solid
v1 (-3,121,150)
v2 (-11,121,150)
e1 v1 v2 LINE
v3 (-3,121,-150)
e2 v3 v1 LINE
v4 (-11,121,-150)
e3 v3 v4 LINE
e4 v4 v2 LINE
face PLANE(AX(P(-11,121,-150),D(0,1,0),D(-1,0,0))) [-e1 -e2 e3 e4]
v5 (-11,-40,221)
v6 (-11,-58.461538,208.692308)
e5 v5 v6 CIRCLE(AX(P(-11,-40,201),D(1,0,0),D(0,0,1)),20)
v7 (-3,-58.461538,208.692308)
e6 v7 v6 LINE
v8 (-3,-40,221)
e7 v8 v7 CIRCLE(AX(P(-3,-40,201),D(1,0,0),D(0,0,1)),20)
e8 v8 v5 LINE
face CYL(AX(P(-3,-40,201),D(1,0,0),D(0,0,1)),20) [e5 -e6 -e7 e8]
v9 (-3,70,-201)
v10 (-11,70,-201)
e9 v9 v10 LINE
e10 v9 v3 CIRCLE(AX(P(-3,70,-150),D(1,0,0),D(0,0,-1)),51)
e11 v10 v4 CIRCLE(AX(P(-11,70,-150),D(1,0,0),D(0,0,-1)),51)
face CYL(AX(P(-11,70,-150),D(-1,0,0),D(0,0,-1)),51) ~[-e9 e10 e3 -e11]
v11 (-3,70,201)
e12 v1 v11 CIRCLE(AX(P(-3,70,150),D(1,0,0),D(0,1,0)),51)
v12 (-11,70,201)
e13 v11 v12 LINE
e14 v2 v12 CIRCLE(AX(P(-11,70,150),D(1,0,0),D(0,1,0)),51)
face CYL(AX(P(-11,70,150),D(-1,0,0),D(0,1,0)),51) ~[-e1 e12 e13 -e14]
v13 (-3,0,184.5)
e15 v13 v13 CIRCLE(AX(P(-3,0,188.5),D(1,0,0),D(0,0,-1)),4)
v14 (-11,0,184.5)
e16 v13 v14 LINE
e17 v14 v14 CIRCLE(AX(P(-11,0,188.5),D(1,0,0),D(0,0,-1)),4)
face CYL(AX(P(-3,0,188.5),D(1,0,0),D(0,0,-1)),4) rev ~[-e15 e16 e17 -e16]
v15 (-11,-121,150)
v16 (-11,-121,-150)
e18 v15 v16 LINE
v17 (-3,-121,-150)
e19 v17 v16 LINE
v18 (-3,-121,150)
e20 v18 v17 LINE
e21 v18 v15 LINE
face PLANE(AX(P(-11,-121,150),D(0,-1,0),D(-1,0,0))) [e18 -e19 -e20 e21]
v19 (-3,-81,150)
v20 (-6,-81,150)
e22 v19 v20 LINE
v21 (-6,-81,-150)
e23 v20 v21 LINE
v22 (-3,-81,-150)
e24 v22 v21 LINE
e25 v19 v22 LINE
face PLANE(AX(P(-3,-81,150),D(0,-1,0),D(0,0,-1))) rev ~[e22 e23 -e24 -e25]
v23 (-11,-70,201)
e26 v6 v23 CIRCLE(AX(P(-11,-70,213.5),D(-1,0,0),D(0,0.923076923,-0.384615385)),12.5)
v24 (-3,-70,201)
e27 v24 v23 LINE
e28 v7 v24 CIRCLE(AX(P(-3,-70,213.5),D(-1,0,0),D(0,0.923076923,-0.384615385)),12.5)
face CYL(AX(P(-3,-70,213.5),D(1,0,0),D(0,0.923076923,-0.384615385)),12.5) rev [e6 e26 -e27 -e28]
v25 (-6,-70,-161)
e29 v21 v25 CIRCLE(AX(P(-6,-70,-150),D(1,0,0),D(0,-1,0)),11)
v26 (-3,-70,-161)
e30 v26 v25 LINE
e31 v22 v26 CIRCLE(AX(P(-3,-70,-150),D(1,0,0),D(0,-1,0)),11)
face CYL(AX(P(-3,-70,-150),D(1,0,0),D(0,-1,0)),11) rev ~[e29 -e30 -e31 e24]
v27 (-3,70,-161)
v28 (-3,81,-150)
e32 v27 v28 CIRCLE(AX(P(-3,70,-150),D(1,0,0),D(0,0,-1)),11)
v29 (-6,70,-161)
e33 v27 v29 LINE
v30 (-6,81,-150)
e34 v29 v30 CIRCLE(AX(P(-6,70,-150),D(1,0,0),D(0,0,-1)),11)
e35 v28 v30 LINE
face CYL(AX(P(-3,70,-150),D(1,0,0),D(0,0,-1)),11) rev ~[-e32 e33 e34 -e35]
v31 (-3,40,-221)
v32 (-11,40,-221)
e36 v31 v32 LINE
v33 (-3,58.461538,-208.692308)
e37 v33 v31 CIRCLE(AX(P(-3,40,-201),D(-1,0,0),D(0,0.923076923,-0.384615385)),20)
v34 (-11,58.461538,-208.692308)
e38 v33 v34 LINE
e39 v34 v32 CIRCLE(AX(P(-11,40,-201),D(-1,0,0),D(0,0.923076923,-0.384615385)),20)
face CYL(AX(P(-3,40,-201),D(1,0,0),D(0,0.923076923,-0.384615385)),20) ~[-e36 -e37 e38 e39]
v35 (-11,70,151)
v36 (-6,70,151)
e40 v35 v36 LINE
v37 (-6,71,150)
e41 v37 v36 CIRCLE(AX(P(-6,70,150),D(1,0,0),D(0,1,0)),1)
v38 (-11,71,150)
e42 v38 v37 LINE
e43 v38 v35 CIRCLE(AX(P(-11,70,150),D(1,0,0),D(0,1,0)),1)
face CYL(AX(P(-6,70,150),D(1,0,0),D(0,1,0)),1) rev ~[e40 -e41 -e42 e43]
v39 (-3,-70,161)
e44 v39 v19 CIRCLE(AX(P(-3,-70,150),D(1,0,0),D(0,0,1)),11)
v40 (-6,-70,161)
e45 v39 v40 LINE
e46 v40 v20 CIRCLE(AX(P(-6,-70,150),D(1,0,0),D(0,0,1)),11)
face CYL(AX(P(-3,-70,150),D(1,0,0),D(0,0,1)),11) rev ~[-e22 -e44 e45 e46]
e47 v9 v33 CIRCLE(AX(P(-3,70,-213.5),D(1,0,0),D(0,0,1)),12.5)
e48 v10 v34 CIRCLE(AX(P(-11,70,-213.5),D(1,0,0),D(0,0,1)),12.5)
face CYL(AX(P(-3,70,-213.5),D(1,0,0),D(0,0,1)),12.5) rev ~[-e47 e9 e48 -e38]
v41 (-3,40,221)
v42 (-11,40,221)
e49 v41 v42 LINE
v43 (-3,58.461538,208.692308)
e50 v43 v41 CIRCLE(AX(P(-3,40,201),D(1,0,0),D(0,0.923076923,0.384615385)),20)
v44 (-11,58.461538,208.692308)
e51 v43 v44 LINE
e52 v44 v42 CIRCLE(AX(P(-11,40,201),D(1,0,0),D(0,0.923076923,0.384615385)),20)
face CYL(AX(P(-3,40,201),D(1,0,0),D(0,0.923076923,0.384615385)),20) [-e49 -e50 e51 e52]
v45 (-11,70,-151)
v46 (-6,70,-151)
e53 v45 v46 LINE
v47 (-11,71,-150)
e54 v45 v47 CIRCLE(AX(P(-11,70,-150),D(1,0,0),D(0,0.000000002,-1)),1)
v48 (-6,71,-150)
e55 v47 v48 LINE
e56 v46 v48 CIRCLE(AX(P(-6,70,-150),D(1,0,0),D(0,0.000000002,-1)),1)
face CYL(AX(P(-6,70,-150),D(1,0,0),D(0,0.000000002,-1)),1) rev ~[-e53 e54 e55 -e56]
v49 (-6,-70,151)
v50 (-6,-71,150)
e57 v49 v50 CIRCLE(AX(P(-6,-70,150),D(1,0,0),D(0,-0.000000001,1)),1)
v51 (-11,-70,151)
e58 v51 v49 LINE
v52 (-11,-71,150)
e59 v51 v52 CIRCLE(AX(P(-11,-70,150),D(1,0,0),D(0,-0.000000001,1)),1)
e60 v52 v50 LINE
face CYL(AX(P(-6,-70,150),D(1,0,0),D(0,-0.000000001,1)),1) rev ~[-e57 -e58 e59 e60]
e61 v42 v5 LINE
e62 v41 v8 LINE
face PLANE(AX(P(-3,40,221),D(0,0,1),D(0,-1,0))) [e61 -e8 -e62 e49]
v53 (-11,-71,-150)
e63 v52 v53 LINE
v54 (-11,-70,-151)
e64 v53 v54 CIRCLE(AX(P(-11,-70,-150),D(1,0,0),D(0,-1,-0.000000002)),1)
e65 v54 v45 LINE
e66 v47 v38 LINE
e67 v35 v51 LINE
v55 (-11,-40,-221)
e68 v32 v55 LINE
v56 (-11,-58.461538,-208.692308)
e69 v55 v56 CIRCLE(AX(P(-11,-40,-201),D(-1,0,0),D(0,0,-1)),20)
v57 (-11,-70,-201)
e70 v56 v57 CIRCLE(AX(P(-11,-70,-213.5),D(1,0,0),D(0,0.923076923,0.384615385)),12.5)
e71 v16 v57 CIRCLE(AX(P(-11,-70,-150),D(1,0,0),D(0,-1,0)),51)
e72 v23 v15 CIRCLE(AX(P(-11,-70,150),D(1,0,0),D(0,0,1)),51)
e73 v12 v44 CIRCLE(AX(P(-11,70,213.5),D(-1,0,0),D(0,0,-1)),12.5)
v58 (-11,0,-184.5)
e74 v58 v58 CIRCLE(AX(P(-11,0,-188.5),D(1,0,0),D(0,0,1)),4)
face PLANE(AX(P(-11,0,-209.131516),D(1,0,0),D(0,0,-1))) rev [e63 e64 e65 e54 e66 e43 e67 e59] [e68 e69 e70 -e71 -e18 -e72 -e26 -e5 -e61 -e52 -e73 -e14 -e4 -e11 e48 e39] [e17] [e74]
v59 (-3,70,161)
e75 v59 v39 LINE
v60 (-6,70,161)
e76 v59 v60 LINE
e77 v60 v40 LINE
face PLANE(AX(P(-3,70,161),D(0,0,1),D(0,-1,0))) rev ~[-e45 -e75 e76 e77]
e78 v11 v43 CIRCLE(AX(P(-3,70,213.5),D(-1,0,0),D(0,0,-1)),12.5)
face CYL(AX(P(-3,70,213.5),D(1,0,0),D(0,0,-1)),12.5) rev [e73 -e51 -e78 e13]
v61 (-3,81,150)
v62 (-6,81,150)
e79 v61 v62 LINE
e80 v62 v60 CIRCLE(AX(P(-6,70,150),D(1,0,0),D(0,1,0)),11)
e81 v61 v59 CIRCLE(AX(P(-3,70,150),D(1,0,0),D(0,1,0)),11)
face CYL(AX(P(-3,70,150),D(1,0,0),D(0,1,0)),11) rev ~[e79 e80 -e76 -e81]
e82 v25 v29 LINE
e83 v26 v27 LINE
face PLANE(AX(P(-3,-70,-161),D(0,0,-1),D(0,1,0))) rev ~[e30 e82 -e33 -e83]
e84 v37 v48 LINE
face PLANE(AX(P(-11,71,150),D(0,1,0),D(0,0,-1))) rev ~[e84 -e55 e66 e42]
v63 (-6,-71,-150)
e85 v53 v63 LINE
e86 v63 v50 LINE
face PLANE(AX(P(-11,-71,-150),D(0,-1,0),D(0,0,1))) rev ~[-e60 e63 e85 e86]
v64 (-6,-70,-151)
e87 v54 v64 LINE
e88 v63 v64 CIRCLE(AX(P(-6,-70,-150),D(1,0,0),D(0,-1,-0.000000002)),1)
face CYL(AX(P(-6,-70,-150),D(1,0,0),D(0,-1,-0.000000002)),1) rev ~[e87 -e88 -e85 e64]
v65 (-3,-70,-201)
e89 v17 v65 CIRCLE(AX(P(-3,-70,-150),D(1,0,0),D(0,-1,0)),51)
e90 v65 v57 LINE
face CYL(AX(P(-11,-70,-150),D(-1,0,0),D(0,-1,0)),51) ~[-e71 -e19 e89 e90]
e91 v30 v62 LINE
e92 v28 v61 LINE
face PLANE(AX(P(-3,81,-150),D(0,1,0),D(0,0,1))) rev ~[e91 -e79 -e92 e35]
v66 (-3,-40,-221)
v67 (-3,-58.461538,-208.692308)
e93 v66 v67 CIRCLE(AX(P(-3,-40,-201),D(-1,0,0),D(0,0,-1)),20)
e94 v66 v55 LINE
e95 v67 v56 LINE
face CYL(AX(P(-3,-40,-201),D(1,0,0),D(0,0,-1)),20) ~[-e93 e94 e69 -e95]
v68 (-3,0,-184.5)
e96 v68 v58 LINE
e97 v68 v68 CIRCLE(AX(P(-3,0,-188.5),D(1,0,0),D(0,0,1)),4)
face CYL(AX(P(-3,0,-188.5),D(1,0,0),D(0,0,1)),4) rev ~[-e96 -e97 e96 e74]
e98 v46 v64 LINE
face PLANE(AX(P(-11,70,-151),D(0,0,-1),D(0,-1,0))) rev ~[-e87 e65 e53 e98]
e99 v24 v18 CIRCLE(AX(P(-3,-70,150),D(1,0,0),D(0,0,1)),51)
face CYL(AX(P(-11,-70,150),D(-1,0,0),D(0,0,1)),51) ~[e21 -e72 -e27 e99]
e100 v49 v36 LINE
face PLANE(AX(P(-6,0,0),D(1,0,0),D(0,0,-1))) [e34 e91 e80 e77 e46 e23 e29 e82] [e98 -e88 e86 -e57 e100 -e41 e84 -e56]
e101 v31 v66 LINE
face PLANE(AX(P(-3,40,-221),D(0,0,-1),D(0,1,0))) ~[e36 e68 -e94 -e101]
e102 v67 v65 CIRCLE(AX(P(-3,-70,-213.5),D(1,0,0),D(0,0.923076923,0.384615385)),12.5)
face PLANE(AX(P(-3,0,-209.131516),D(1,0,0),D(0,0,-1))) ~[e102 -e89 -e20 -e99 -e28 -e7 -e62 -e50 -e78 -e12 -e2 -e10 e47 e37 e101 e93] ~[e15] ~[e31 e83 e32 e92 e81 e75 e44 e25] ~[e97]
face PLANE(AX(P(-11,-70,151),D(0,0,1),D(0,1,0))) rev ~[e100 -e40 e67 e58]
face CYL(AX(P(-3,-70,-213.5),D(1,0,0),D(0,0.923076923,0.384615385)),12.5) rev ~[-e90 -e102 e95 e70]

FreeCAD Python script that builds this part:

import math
import FreeCAD as App
import Part
import Sketcher


def add_polygon(sketch, points):
    """Adds a closed chain of lines whose ends are joined by coincident constraints."""
    first, n = sketch.GeometryCount, len(points)
    for a, b in zip(points, points[1:] + points[:1]):
        sketch.addGeometry(Part.LineSegment(App.Vector(*a, 0), App.Vector(*b, 0)), False)
    for i in range(n):
        sketch.addConstraint(Sketcher.Constraint("Coincident", first + i, 2, first + (i + 1) % n, 1))

doc = App.newDocument("Part")
body = doc.addObject("PartDesign::Body", "Body")

# Sketch on XY plane
sketch1 = body.newObject("Sketcher::SketchObject", "Sketch")
sketch1.AttachmentSupport = (doc.getObject("XY_Plane"), [""])
sketch1.MapMode = "FlatFace"
add_polygon(sketch1, [(-3, 81), (-3, 121), (-11, 121), (-11, 71), (-6, 71), (-6, 81)])  # lines 0-5
sketch1.addConstraint([
    Sketcher.Constraint("Vertical", 0),
    Sketcher.Constraint("Horizontal", 1),
    Sketcher.Constraint("Vertical", 2),
    Sketcher.Constraint("Horizontal", 3),
    Sketcher.Constraint("Vertical", 4),
    Sketcher.Constraint("Horizontal", 5),
    Sketcher.Constraint("DistanceX", 1, 2, 1, 1, 8.0),
    Sketcher.Constraint("DistanceX", 3, 1, 3, 2, 5.0),
    Sketcher.Constraint("DistanceY", 0, 1, 0, 2, 40.0),
    Sketcher.Constraint("DistanceY", 2, 2, 2, 1, 50.0),
    Sketcher.Constraint("DistanceX", 0, 2, -1, 1, 3.0),
    Sketcher.Constraint("DistanceY", -1, 1, 0, 2, 121.0),
])

# Sketch on YZ plane
sketch2 = body.newObject("Sketcher::SketchObject", "Sketch001")
sketch2.AttachmentSupport = (doc.getObject("YZ_Plane"), [""])
sketch2.MapMode = "FlatFace"
sketch2.addGeometry([
    Part.LineSegment(App.Vector(92, -150, 0), App.Vector(92, 150, 0)),  # 0
    Part.ArcOfCircle(Part.Circle(App.Vector(70, 150, 0), App.Vector(0, 0, 1), 22), math.radians(0), math.radians(90)),  # 1
    Part.LineSegment(App.Vector(70, 172, 0), App.Vector(-70, 172, 0)),  # 2
    Part.ArcOfCircle(Part.Circle(App.Vector(-70, 150, 0), App.Vector(0, 0, 1), 22), math.radians(90), math.radians(180)),  # 3
    Part.LineSegment(App.Vector(-92, 150, 0), App.Vector(-92, -150, 0)),  # 4
    Part.ArcOfCircle(Part.Circle(App.Vector(-70, -150, 0), App.Vector(0, 0, 1), 22), math.radians(180), math.radians(270)),  # 5
    Part.LineSegment(App.Vector(-70, -172, 0), App.Vector(70, -172, 0)),  # 6
    Part.ArcOfCircle(Part.Circle(App.Vector(70, -150, 0), App.Vector(0, 0, 1), 22), math.radians(-90), math.radians(0)),  # 7
], False)
sketch2.addConstraint([
    Sketcher.Constraint("Tangent", 0, 2, 1, 1),
    Sketcher.Constraint("Tangent", 1, 2, 2, 1),
    Sketcher.Constraint("Tangent", 2, 2, 3, 1),
    Sketcher.Constraint("Tangent", 3, 2, 4, 1),
    Sketcher.Constraint("Tangent", 4, 2, 5, 1),
    Sketcher.Constraint("Tangent", 5, 2, 6, 1),
    Sketcher.Constraint("Tangent", 6, 2, 7, 1),
    Sketcher.Constraint("Tangent", 7, 2, 0, 1),
    Sketcher.Constraint("Vertical", 0),
    Sketcher.Constraint("Horizontal", 2),
    Sketcher.Constraint("Vertical", 4),
    Sketcher.Constraint("Horizontal", 6),
    Sketcher.Constraint("Equal", 1, 3),
    Sketcher.Constraint("Equal", 3, 5),
    Sketcher.Constraint("Equal", 5, 7),
    Sketcher.Constraint("Symmetric", 1, 3, 5, 3, -1, 1),
    Sketcher.Constraint("Radius", 1, 22.0),
    Sketcher.Constraint("DistanceX", 2, 2, 2, 1, 140.0),
    Sketcher.Constraint("DistanceY", 0, 1, 0, 2, 300.0),
])
doc.recompute()

additivepipe = body.newObject("PartDesign::AdditivePipe", "AdditivePipe")
additivepipe.Profile = sketch1
additivepipe.Spine = (sketch2, ["Edge1", "Edge2", "Edge3", "Edge4", "Edge5", "Edge6", "Edge7", "Edge8"])

# Sketch on YZ plane
sketch3 = body.newObject("Sketcher::SketchObject", "Sketch002")
sketch3.AttachmentSupport = (doc.getObject("YZ_Plane"), [""])
sketch3.MapMode = "FlatFace"
sketch3.AttachmentOffset = App.Placement(App.Vector(0, 0, -11), App.Rotation())
sketch3.addGeometry([
    Part.LineSegment(App.Vector(-70, 201, 0), App.Vector(70, 201, 0)),  # 0
    Part.ArcOfCircle(Part.Circle(App.Vector(70, 150, 0), App.Vector(0, 0, 1), 51), math.radians(0), math.radians(90)),  # 1
    Part.LineSegment(App.Vector(121, 150, 0), App.Vector(121, -150, 0)),  # 2
    Part.ArcOfCircle(Part.Circle(App.Vector(70, -150, 0), App.Vector(0, 0, 1), 51), math.radians(-90), math.radians(0)),  # 3
    Part.LineSegment(App.Vector(70, -201, 0), App.Vector(-70, -201, 0)),  # 4
    Part.ArcOfCircle(Part.Circle(App.Vector(-70, -150, 0), App.Vector(0, 0, 1), 51), math.radians(180), math.radians(270)),  # 5
    Part.LineSegment(App.Vector(-121, -150, 0), App.Vector(-121, 150, 0)),  # 6
    Part.ArcOfCircle(Part.Circle(App.Vector(-70, 150, 0), App.Vector(0, 0, 1), 51), math.radians(90), math.radians(180)),  # 7
    Part.ArcOfCircle(Part.Circle(App.Vector(70, -150, 0), App.Vector(0, 0, 1), 1), math.radians(-90), math.radians(0)),  # 8
    Part.LineSegment(App.Vector(71, -150, 0), App.Vector(71, 150, 0)),  # 9
    Part.ArcOfCircle(Part.Circle(App.Vector(70, 150, 0), App.Vector(0, 0, 1), 1), math.radians(0), math.radians(90)),  # 10
    Part.LineSegment(App.Vector(70, 151, 0), App.Vector(-70, 151, 0)),  # 11
    Part.ArcOfCircle(Part.Circle(App.Vector(-70, 150, 0), App.Vector(0, 0, 1), 1), math.radians(90), math.radians(180)),  # 12
    Part.LineSegment(App.Vector(-71, 150, 0), App.Vector(-71, -150, 0)),  # 13
    Part.ArcOfCircle(Part.Circle(App.Vector(-70, -150, 0), App.Vector(0, 0, 1), 1), math.radians(-180), math.radians(-90)),  # 14
    Part.LineSegment(App.Vector(-70, -151, 0), App.Vector(70, -151, 0)),  # 15
], False)
sketch3.addConstraint([
    Sketcher.Constraint("Tangent", 0, 2, 1, 2),
    Sketcher.Constraint("Tangent", 1, 1, 2, 1),
    Sketcher.Constraint("Tangent", 2, 2, 3, 2),
    Sketcher.Constraint("Tangent", 3, 1, 4, 1),
    Sketcher.Constraint("Tangent", 4, 2, 5, 2),
    Sketcher.Constraint("Tangent", 5, 1, 6, 1),
    Sketcher.Constraint("Tangent", 6, 2, 7, 2),
    Sketcher.Constraint("Tangent", 7, 1, 0, 1),
    Sketcher.Constraint("Tangent", 8, 2, 9, 1),
    Sketcher.Constraint("Tangent", 9, 2, 10, 1),
    Sketcher.Constraint("Tangent", 10, 2, 11, 1),
    Sketcher.Constraint("Tangent", 11, 2, 12, 1),
    Sketcher.Constraint("Tangent", 12, 2, 13, 1),
    Sketcher.Constraint("Tangent", 13, 2, 14, 1),
    Sketcher.Constraint("Tangent", 14, 2, 15, 1),
    Sketcher.Constraint("Tangent", 15, 2, 8, 1),
    Sketcher.Constraint("Horizontal", 0),
    Sketcher.Constraint("Vertical", 2),
    Sketcher.Constraint("Horizontal", 4),
    Sketcher.Constraint("Vertical", 6),
    Sketcher.Constraint("Vertical", 9),
    Sketcher.Constraint("Horizontal", 11),
    Sketcher.Constraint("Vertical", 13),
    Sketcher.Constraint("Horizontal", 15),
    Sketcher.Constraint("Coincident", 8, 3, 3, 3),
    Sketcher.Constraint("Coincident", 10, 3, 1, 3),
    Sketcher.Constraint("Coincident", 12, 3, 7, 3),
    Sketcher.Constraint("Equal", 1, 3),
    Sketcher.Constraint("Equal", 3, 5),
    Sketcher.Constraint("Equal", 5, 7),
    Sketcher.Constraint("Equal", 12, 14),
    Sketcher.Constraint("Symmetric", 1, 3, 5, 3, -1, 1),
    Sketcher.Constraint("Radius", 1, 51.0),
    Sketcher.Constraint("Radius", 8, 1.0),
    Sketcher.Constraint("DistanceX", 0, 1, 0, 2, 140.0),
    Sketcher.Constraint("DistanceY", 2, 2, 2, 1, 300.0),
])
pad1 = body.newObject("PartDesign::Pad", "Pad")
pad1.Profile = sketch3
pad1.Length = 8

# Sketch on YZ plane
sketch4 = body.newObject("Sketcher::SketchObject", "Sketch003")
sketch4.AttachmentSupport = (doc.getObject("YZ_Plane"), [""])
sketch4.MapMode = "FlatFace"
sketch4.AttachmentOffset = App.Placement(App.Vector(0, 0, -3), App.Rotation())
sketch4.addGeometry([
    Part.LineSegment(App.Vector(-70, -161, 0), App.Vector(70, -161, 0)),  # 0
    Part.ArcOfCircle(Part.Circle(App.Vector(70, -150, 0), App.Vector(0, 0, 1), 11), math.radians(-90), math.radians(0)),  # 1
    Part.LineSegment(App.Vector(81, -150, 0), App.Vector(81, 150, 0)),  # 2
    Part.ArcOfCircle(Part.Circle(App.Vector(70, 150, 0), App.Vector(0, 0, 1), 11), math.radians(0), math.radians(90)),  # 3
    Part.LineSegment(App.Vector(70, 161, 0), App.Vector(-70, 161, 0)),  # 4
    Part.ArcOfCircle(Part.Circle(App.Vector(-70, 150, 0), App.Vector(0, 0, 1), 11), math.radians(90), math.radians(180)),  # 5
    Part.LineSegment(App.Vector(-81, 150, 0), App.Vector(-81, -150, 0)),  # 6
    Part.ArcOfCircle(Part.Circle(App.Vector(-70, -150, 0), App.Vector(0, 0, 1), 11), math.radians(180), math.radians(270)),  # 7
], False)
sketch4.addConstraint([
    Sketcher.Constraint("Tangent", 0, 2, 1, 1),
    Sketcher.Constraint("Tangent", 1, 2, 2, 1),
    Sketcher.Constraint("Tangent", 2, 2, 3, 1),
    Sketcher.Constraint("Tangent", 3, 2, 4, 1),
    Sketcher.Constraint("Tangent", 4, 2, 5, 1),
    Sketcher.Constraint("Tangent", 5, 2, 6, 1),
    Sketcher.Constraint("Tangent", 6, 2, 7, 1),
    Sketcher.Constraint("Tangent", 7, 2, 0, 1),
    Sketcher.Constraint("Horizontal", 0),
    Sketcher.Constraint("Vertical", 2),
    Sketcher.Constraint("Horizontal", 4),
    Sketcher.Constraint("Vertical", 6),
    Sketcher.Constraint("Equal", 1, 3),
    Sketcher.Constraint("Equal", 3, 5),
    Sketcher.Constraint("Equal", 5, 7),
    Sketcher.Constraint("Symmetric", 1, 3, 5, 3, -1, 1),
    Sketcher.Constraint("Radius", 1, 11.0),
    Sketcher.Constraint("DistanceX", 0, 1, 0, 2, 140.0),
    Sketcher.Constraint("DistanceY", 2, 1, 2, 2, 300.0),
])
pocket1 = body.newObject("PartDesign::Pocket", "Pocket")
pocket1.Profile = sketch4
pocket1.Length = 3

# Sketch on YZ plane
sketch5 = body.newObject("Sketcher::SketchObject", "Sketch004")
sketch5.AttachmentSupport = (doc.getObject("YZ_Plane"), [""])
sketch5.MapMode = "FlatFace"
sketch5.AttachmentOffset = App.Placement(App.Vector(0, 0, -3), App.Rotation())
sketch5.addGeometry([
    Part.Circle(App.Vector(0, 188.5, 0), App.Vector(0, 0, 1), 4),
    Part.Circle(App.Vector(0, -188.5, 0), App.Vector(0, 0, 1), 4),
], False)
sketch5.addConstraint([
    Sketcher.Constraint("Equal", 0, 1),
    Sketcher.Constraint("Symmetric", 0, 3, 1, 3, -1, 1),
    Sketcher.Constraint("PointOnObject", 0, 3, -2),
    Sketcher.Constraint("Diameter", 0, 8.0),
    Sketcher.Constraint("DistanceY", 1, 3, 0, 3, 377.0),
])
pocket2 = body.newObject("PartDesign::Pocket", "Pocket001")
pocket2.Profile = sketch5
pocket2.Type = "ThroughAll"

# Sketch on YZ plane
sketch6 = body.newObject("Sketcher::SketchObject", "Sketch005")
sketch6.AttachmentSupport = (doc.getObject("YZ_Plane"), [""])
sketch6.MapMode = "FlatFace"
sketch6.AttachmentOffset = App.Placement(App.Vector(0, 0, -3), App.Rotation())
sketch6.addGeometry([
    Part.LineSegment(App.Vector(-70, 201, 0), App.Vector(70, 201, 0)),  # 0
    Part.ArcOfCircle(Part.Circle(App.Vector(70, 213, 0), App.Vector(0, 0, 1), 12), math.radians(-157), math.radians(-90)),  # 1
    Part.ArcOfCircle(Part.Circle(App.Vector(40, 201, 0), App.Vector(0, 0, 1), 20), math.radians(23), math.radians(90)),  # 2
    Part.LineSegment(App.Vector(40, 221, 0), App.Vector(-40, 221, 0)),  # 3
    Part.ArcOfCircle(Part.Circle(App.Vector(-40, 201, 0), App.Vector(0, 0, 1), 20), math.radians(90), math.radians(157)),  # 4
    Part.ArcOfCircle(Part.Circle(App.Vector(-70, 213, 0), App.Vector(0, 0, 1), 12), math.radians(-90), math.radians(-23)),  # 5
], False)
sketch6.addConstraint([
    Sketcher.Constraint("Tangent", 0, 2, 1, 2),
    Sketcher.Constraint("Tangent", 1, 1, 2, 1),
    Sketcher.Constraint("Tangent", 2, 2, 3, 1),
    Sketcher.Constraint("Tangent", 3, 2, 4, 1),
    Sketcher.Constraint("Tangent", 4, 2, 5, 2),
    Sketcher.Constraint("Tangent", 5, 1, 0, 1),
    Sketcher.Constraint("Horizontal", 0),
    Sketcher.Constraint("Horizontal", 3),
    Sketcher.Constraint("Equal", 2, 4),
    Sketcher.Constraint("Equal", 1, 5),
    Sketcher.Constraint("Horizontal", 4, 3, 0, 2),
    Sketcher.Constraint("Radius", 2, 20.0),
    Sketcher.Constraint("Radius", 1, 12.5),
    Sketcher.Constraint("DistanceX", 0, 1, 0, 2, 140.0),
    Sketcher.Constraint("DistanceX", -1, 1, 1, 3, 70.0),
    Sketcher.Constraint("DistanceY", -1, 1, 2, 3, 201.0),
])
pad2 = body.newObject("PartDesign::Pad", "Pad001")
pad2.Profile = sketch6
pad2.Length = 8
pad2.Reversed = True
doc.recompute()

mirrored = body.newObject("PartDesign::Mirrored", "Mirrored")
mirrored.Originals = [pad2]
mirrored.MirrorPlane = (doc.getObject("XY_Plane"), [""])
body.Tip = mirrored

doc.recompute()
